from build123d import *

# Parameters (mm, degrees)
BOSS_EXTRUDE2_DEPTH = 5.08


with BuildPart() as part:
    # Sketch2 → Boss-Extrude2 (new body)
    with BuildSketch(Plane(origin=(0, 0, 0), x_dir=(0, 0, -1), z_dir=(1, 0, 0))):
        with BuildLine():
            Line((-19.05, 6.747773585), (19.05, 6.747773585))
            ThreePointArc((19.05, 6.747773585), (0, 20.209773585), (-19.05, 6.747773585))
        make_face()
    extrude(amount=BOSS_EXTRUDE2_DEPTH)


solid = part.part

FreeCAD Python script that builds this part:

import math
import FreeCAD as App
import Part
import Sketcher
Q = App.Units.Quantity

doc = App.newDocument("Part")
params = doc.addObject("Spreadsheet::Sheet", "Params")
for row, (alias, value) in enumerate([
    ("sketch1_height", "1.5 in"),
    ("pad1_length", "0.2 in"),
], start=1):
    params.set(f"A{row}", alias)
    params.set(f"B{row}", "=" + value)
    params.setAlias(f"B{row}", alias)

body = doc.addObject("PartDesign::Body", "Body")

sketch1 = body.newObject("Sketcher::SketchObject", "Sketch")
sketch1.AttachmentSupport = (doc.getObject("YZ_Plane"), [""])
sketch1.MapMode = "FlatFace"
sketch1.addGeometry([
    Part.LineSegment(App.Vector(6.747774, 19.05, 0), App.Vector(6.747774, -19.05, 0)),
    Part.ArcOfCircle(Part.Circle(App.Vector(0, 0, 0), App.Vector(0, 0, 1), 20.209774), math.radians(-70.49515), math.radians(70.49515)),
], False)
sketch1.addConstraint([
    Sketcher.Constraint("Coincident", 0, 1, 1, 2),
    Sketcher.Constraint("Coincident", 1, 1, 0, 2),
    Sketcher.Constraint("Vertical", 0),
    Sketcher.Constraint("Coincident", 1, 3, -1, 1),
    Sketcher.Constraint("DistanceY", 0, 2, 0, 1, Q("1.5 in")),
    Sketcher.Constraint("Radius", 1, 20.209774),
])
sketch1.setExpression("Constraints[4]", "Params.sketch1_height")
pad1 = body.newObject("PartDesign::Pad", "Pad")
pad1.Profile = sketch1
pad1.setExpression("Length", "Params.pad1_length")

doc.recompute()
